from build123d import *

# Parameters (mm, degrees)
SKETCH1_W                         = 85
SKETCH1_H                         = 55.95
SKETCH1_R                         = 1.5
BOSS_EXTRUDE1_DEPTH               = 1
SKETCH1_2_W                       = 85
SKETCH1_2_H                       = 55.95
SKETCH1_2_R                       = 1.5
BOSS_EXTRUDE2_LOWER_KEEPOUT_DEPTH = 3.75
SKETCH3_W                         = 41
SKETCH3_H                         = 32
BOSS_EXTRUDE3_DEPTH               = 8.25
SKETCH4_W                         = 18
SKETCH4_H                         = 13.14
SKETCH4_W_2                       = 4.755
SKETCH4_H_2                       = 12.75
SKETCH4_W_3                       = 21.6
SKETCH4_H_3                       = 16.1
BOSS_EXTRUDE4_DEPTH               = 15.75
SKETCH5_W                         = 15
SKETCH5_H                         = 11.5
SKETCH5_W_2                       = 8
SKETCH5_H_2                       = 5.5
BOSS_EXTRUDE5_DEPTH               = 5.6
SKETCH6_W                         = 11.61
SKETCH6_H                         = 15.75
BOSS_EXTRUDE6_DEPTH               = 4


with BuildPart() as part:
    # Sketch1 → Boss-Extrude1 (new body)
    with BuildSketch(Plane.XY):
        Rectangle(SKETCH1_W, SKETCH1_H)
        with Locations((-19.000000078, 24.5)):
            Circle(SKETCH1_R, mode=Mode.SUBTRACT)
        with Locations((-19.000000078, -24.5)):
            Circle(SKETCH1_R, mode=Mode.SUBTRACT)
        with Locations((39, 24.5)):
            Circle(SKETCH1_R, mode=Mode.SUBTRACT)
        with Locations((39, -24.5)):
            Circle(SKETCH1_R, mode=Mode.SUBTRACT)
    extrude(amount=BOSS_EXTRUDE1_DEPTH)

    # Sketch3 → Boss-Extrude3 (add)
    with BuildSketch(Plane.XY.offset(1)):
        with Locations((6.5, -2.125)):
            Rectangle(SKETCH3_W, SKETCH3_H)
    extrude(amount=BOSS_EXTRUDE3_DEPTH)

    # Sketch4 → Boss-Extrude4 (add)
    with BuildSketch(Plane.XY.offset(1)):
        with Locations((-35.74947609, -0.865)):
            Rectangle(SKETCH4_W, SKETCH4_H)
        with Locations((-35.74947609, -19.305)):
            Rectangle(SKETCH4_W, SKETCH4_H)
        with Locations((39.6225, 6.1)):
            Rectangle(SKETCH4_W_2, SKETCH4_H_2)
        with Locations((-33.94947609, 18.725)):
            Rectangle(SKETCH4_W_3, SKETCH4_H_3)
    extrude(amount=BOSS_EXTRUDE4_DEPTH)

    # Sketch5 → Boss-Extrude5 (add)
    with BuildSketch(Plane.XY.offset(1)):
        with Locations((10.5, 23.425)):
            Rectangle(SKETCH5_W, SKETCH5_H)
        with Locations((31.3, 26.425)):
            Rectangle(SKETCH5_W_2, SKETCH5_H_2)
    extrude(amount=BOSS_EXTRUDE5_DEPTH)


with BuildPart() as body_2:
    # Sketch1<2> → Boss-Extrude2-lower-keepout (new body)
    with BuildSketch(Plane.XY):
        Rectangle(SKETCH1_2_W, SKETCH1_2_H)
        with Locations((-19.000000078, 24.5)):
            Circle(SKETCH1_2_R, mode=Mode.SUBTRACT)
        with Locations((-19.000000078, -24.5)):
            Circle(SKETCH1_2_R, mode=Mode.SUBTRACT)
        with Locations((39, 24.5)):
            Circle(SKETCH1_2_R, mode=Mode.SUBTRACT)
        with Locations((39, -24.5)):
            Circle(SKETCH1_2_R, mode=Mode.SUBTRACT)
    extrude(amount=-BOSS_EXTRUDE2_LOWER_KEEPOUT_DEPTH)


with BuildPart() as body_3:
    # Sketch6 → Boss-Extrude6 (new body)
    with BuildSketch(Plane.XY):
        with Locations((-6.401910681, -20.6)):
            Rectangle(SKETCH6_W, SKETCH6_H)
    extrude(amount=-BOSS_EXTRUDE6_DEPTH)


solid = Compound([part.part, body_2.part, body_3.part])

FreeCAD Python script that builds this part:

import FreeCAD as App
import Part
import Sketcher


def add_polygon(sketch, points):
    """Adds a closed chain of lines whose ends are joined by coincident constraints."""
    first, n = sketch.GeometryCount, len(points)
    for a, b in zip(points, points[1:] + points[:1]):
        sketch.addGeometry(Part.LineSegment(App.Vector(*a, 0), App.Vector(*b, 0)), False)
    for i in range(n):
        sketch.addConstraint(Sketcher.Constraint("Coincident", first + i, 2, first + (i + 1) % n, 1))

doc = App.newDocument("Part")
params = doc.addObject("Spreadsheet::Sheet", "Params")
for row, (alias, value) in enumerate([
    ("sketch1_diameter", "3 mm"),
    ("sketch1_width", "85 mm"),
    ("sketch1_height", "55.95 mm"),
    ("pad1_length", "1 mm"),
    ("sketch2_width", "41 mm"),
    ("sketch2_height", "32 mm"),
    ("pad2_length", "8.25 mm"),
    ("sketch3_width", "18 mm"),
    ("sketch3_width2", "21.6 mm"),
    ("sketch3_height", "16.1 mm"),
    ("sketch3_height2", "13.14 mm"),
    ("sketch3_height3", "12.75 mm"),
    ("pad3_length", "15.75 mm"),
    ("sketch4_width", "15 mm"),
    ("sketch4_width2", "8 mm"),
    ("sketch4_height", "11.5 mm"),
    ("sketch4_height2", "5.5 mm"),
    ("pad4_length", "5.6 mm"),
    ("sketch5_diameter", "3 mm"),
    ("sketch5_width", "85 mm"),
    ("sketch5_height", "55.95 mm"),
    ("pad5_length", "3.75 mm"),
    ("sketch6_width", "11.61 mm"),
    ("sketch6_height", "15.75 mm"),
    ("pad6_length", "4 mm"),
], start=1):
    params.set(f"A{row}", alias)
    params.set(f"B{row}", "=" + value)
    params.setAlias(f"B{row}", alias)

body = doc.addObject("PartDesign::Body", "Body")

# Sketch on XY plane
sketch1 = body.newObject("Sketcher::SketchObject", "Sketch")
sketch1.AttachmentSupport = (doc.getObject("XY_Plane"), [""])
sketch1.MapMode = "FlatFace"
add_polygon(sketch1, [(-42.5, 27.975), (-42.5, -27.975), (42.5, -27.975), (42.5, 27.975)])  # lines 0-3
sketch1.addGeometry(Part.Circle(App.Vector(-19, -24.5, 0), App.Vector(0, 0, 1), 1.5), False)  # 4
sketch1.addGeometry(Part.Circle(App.Vector(39, -24.5, 0), App.Vector(0, 0, 1), 1.5), False)  # 5
sketch1.addGeometry(Part.Circle(App.Vector(-19, 24.5, 0), App.Vector(0, 0, 1), 1.5), False)  # 6
sketch1.addGeometry(Part.Circle(App.Vector(39, 24.5, 0), App.Vector(0, 0, 1), 1.5), False)  # 7
sketch1.addConstraint([
    Sketcher.Constraint("Vertical", 0),
    Sketcher.Constraint("Horizontal", 1),
    Sketcher.Constraint("Vertical", 2),
    Sketcher.Constraint("Horizontal", 3),
    Sketcher.Constraint("Equal", 4, 5),
    Sketcher.Constraint("Equal", 5, 6),
    Sketcher.Constraint("Equal", 6, 7),
    Sketcher.Constraint("Symmetric", 0, 2, 2, 2, -1, 1),
    Sketcher.Constraint("Symmetric", 4, 3, 6, 3, -1),
    Sketcher.Constraint("Symmetric", 5, 3, 7, 3, -1),
    Sketcher.Constraint("Horizontal", 4, 3, 5, 3),
    Sketcher.Constraint("Diameter", 4, 3.0),
    Sketcher.Constraint("DistanceX", 1, 1, 1, 2, 85.0),
    Sketcher.Constraint("DistanceX", 4, 3, -1, 1, 19.0),
    Sketcher.Constraint("DistanceX", -1, 1, 5, 3, 39.0),
    Sketcher.Constraint("DistanceY", 4, 3, 6, 3, 49.0),
    Sketcher.Constraint("DistanceY", 0, 2, 0, 1, 55.95),
])
sketch1.setExpression("Constraints[15]", "Params.sketch1_diameter")
sketch1.setExpression("Constraints[16]", "Params.sketch1_width")
sketch1.setExpression("Constraints[20]", "Params.sketch1_height")
pad1 = body.newObject("PartDesign::Pad", "Pad")
pad1.Profile = sketch1
pad1.setExpression("Length", "Params.pad1_length")

# Sketch on XY plane
sketch2 = body.newObject("Sketcher::SketchObject", "Sketch001")
sketch2.AttachmentSupport = (doc.getObject("XY_Plane"), [""])
sketch2.MapMode = "FlatFace"
sketch2.AttachmentOffset = App.Placement(App.Vector(0, 0, 1), App.Rotation())
add_polygon(sketch2, [(-14, 13.875), (-14, -18.125), (27, -18.125), (27, 13.875)])  # lines 0-3
sketch2.addConstraint([
    Sketcher.Constraint("Vertical", 0),
    Sketcher.Constraint("Horizontal", 1),
    Sketcher.Constraint("Vertical", 2),
    Sketcher.Constraint("Horizontal", 3),
    Sketcher.Constraint("DistanceX", 1, 1, 1, 2, 41.0),
    Sketcher.Constraint("DistanceY", 0, 2, 0, 1, 32.0),
    Sketcher.Constraint("DistanceX", 0, 2, -1, 1, 14.0),
    Sketcher.Constraint("DistanceY", 0, 2, -1, 1, 18.125),
])
sketch2.setExpression("Constraints[8]", "Params.sketch2_width")
sketch2.setExpression("Constraints[9]", "Params.sketch2_height")
pad2 = body.newObject("PartDesign::Pad", "Pad001")
pad2.Profile = sketch2
pad2.setExpression("Length", "Params.pad2_length")

# Sketch on XY plane
sketch3 = body.newObject("Sketcher::SketchObject", "Sketch002")
sketch3.AttachmentSupport = (doc.getObject("XY_Plane"), [""])
sketch3.MapMode = "FlatFace"
sketch3.AttachmentOffset = App.Placement(App.Vector(0, 0, 1), App.Rotation())
add_polygon(sketch3, [(-44.749476, 5.705), (-44.749476, -7.435), (-26.749476, -7.435), (-26.749476, 5.705)])  # lines 0-3
add_polygon(sketch3, [(-44.749476, -12.735), (-44.749476, -25.875), (-26.749476, -25.875), (-26.749476, -12.735)])  # lines 4-7
add_polygon(sketch3, [(37.245, 12.475), (37.245, -0.275), (42, -0.275), (42, 12.475)])  # lines 8-11
add_polygon(sketch3, [(-44.749476, 26.775), (-44.749476, 10.675), (-23.149476, 10.675), (-23.149476, 26.775)])  # lines 12-15
sketch3.addConstraint([
    Sketcher.Constraint("Vertical", 0),
    Sketcher.Constraint("Horizontal", 1),
    Sketcher.Constraint("Vertical", 2),
    Sketcher.Constraint("Horizontal", 3),
    Sketcher.Constraint("Vertical", 4),
    Sketcher.Constraint("Horizontal", 5),
    Sketcher.Constraint("Vertical", 6),
    Sketcher.Constraint("Horizontal", 7),
    Sketcher.Constraint("Vertical", 8),
    Sketcher.Constraint("Horizontal", 9),
    Sketcher.Constraint("Vertical", 10),
    Sketcher.Constraint("Horizontal", 11),
    Sketcher.Constraint("Vertical", 12),
    Sketcher.Constraint("Horizontal", 13),
    Sketcher.Constraint("Vertical", 14),
    Sketcher.Constraint("Horizontal", 15),
    Sketcher.Constraint("Vertical", 3, 2, 4, 2),
    Sketcher.Constraint("Vertical", 2, 2, 5, 2),
    Sketcher.Constraint("Vertical", 7, 2, 12, 2),
    Sketcher.Constraint("Equal", 2, 4),
    Sketcher.Constraint("DistanceX", 1, 1, 1, 2, 18.0),
    Sketcher.Constraint("DistanceX", 13, 1, 13, 2, 21.6),
    Sketcher.Constraint("DistanceY", 12, 2, 12, 1, 16.1),
    Sketcher.Constraint("DistanceX", -1, 1, 9, 2, 42.0),
    Sketcher.Constraint("DistanceY", 0, 2, 0, 1, 13.14),
    Sketcher.Constraint("DistanceY", 8, 2, 8, 1, 12.75),
    Sketcher.Constraint("DistanceY", 6, 2, 1, 2, 5.3),
    Sketcher.Constraint("DistanceY", 5, 2, 8, 2, 25.6),
    Sketcher.Constraint("DistanceX", 9, 1, 9, 2, 4.755),
    Sketcher.Constraint("DistanceY", 3, 2, 12, 2, 4.97),
    Sketcher.Constraint("DistanceY", 0, 2, -1, 1, 7.435),
    Sketcher.Constraint("DistanceX", 0, 2, -1, 1, 44.749476),
])
sketch3.setExpression("Constraints[36]", "Params.sketch3_width")
sketch3.setExpression("Constraints[37]", "Params.sketch3_width2")
sketch3.setExpression("Constraints[38]", "Params.sketch3_height")
sketch3.setExpression("Constraints[40]", "Params.sketch3_height2")
sketch3.setExpression("Constraints[41]", "Params.sketch3_height3")
pad3 = body.newObject("PartDesign::Pad", "Pad002")
pad3.Profile = sketch3
pad3.setExpression("Length", "Params.pad3_length")

# Sketch on XY plane
sketch4 = body.newObject("Sketcher::SketchObject", "Sketch003")
sketch4.AttachmentSupport = (doc.getObject("XY_Plane"), [""])
sketch4.MapMode = "FlatFace"
sketch4.AttachmentOffset = App.Placement(App.Vector(0, 0, 1), App.Rotation())
add_polygon(sketch4, [(3, 29.175), (3, 17.675), (18, 17.675), (18, 29.175)])  # lines 0-3
add_polygon(sketch4, [(27.3, 29.175), (27.3, 23.675), (35.3, 23.675), (35.3, 29.175)])  # lines 4-7
sketch4.addConstraint([
    Sketcher.Constraint("Vertical", 0),
    Sketcher.Constraint("Horizontal", 1),
    Sketcher.Constraint("Vertical", 2),
    Sketcher.Constraint("Horizontal", 3),
    Sketcher.Constraint("Vertical", 4),
    Sketcher.Constraint("Horizontal", 5),
    Sketcher.Constraint("Vertical", 6),
    Sketcher.Constraint("Horizontal", 7),
    Sketcher.Constraint("Horizontal", 3, 2, 6, 2),
    Sketcher.Constraint("DistanceX", 1, 1, 1, 2, 15.0),
    Sketcher.Constraint("DistanceX", 5, 1, 5, 2, 8.0),
    Sketcher.Constraint("DistanceY", 0, 2, 0, 1, 11.5),
    Sketcher.Constraint("DistanceY", 4, 2, 4, 1, 5.5),
    Sketcher.Constraint("DistanceX", -1, 1, 0, 2, 3.0),
    Sketcher.Constraint("DistanceX", -1, 1, 4, 2, 27.3),
    Sketcher.Constraint("DistanceY", -1, 1, 0, 2, 17.675),
])
sketch4.setExpression("Constraints[17]", "Params.sketch4_width")
sketch4.setExpression("Constraints[18]", "Params.sketch4_width2")
sketch4.setExpression("Constraints[19]", "Params.sketch4_height")
sketch4.setExpression("Constraints[20]", "Params.sketch4_height2")
pad4 = body.newObject("PartDesign::Pad", "Pad003")
pad4.Profile = sketch4
pad4.setExpression("Length", "Params.pad4_length")
body2 = doc.addObject("PartDesign::Body", "Body001")

# Sketch on XY plane
sketch5 = body2.newObject("Sketcher::SketchObject", "Sketch004")
sketch5.AttachmentSupport = (doc.getObject("XY_Plane001"), [""])
sketch5.MapMode = "FlatFace"
add_polygon(sketch5, [(-42.5, 27.975), (-42.5, -27.975), (42.5, -27.975), (42.5, 27.975)])  # lines 0-3
sketch5.addGeometry(Part.Circle(App.Vector(-19, -24.5, 0), App.Vector(0, 0, 1), 1.5), False)  # 4
sketch5.addGeometry(Part.Circle(App.Vector(39, -24.5, 0), App.Vector(0, 0, 1), 1.5), False)  # 5
sketch5.addGeometry(Part.Circle(App.Vector(-19, 24.5, 0), App.Vector(0, 0, 1), 1.5), False)  # 6
sketch5.addGeometry(Part.Circle(App.Vector(39, 24.5, 0), App.Vector(0, 0, 1), 1.5), False)  # 7
sketch5.addConstraint([
    Sketcher.Constraint("Vertical", 0),
    Sketcher.Constraint("Horizontal", 1),
    Sketcher.Constraint("Vertical", 2),
    Sketcher.Constraint("Horizontal", 3),
    Sketcher.Constraint("Equal", 4, 5),
    Sketcher.Constraint("Equal", 5, 6),
    Sketcher.Constraint("Equal", 6, 7),
    Sketcher.Constraint("Symmetric", 0, 2, 2, 2, -1, 1),
    Sketcher.Constraint("Symmetric", 4, 3, 6, 3, -1),
    Sketcher.Constraint("Symmetric", 5, 3, 7, 3, -1),
    Sketcher.Constraint("Horizontal", 4, 3, 5, 3),
    Sketcher.Constraint("Diameter", 4, 3.0),
    Sketcher.Constraint("DistanceX", 1, 1, 1, 2, 85.0),
    Sketcher.Constraint("DistanceX", 4, 3, -1, 1, 19.0),
    Sketcher.Constraint("DistanceX", -1, 1, 5, 3, 39.0),
    Sketcher.Constraint("DistanceY", 4, 3, 6, 3, 49.0),
    Sketcher.Constraint("DistanceY", 0, 2, 0, 1, 55.95),
])
sketch5.setExpression("Constraints[15]", "Params.sketch5_diameter")
sketch5.setExpression("Constraints[16]", "Params.sketch5_width")
sketch5.setExpression("Constraints[20]", "Params.sketch5_height")
pad5 = body2.newObject("PartDesign::Pad", "Pad004")
pad5.Profile = sketch5
pad5.setExpression("Length", "Params.pad5_length")
pad5.Reversed = True
body3 = doc.addObject("PartDesign::Body", "Body002")

# Sketch on XY plane
sketch6 = body3.newObject("Sketcher::SketchObject", "Sketch005")
sketch6.AttachmentSupport = (doc.getObject("XY_Plane002"), [""])
sketch6.MapMode = "FlatFace"
add_polygon(sketch6, [(-12.206911, -12.725), (-12.206911, -28.475), (-0.596911, -28.475), (-0.596911, -12.725)])  # lines 0-3
sketch6.addConstraint([
    Sketcher.Constraint("Vertical", 0),
    Sketcher.Constraint("Horizontal", 1),
    Sketcher.Constraint("Vertical", 2),
    Sketcher.Constraint("Horizontal", 3),
    Sketcher.Constraint("DistanceX", 1, 1, 1, 2, 11.61),
    Sketcher.Constraint("DistanceY", 0, 2, 0, 1, 15.75),
    Sketcher.Constraint("DistanceY", 0, 2, -1, 1, 28.475),
    Sketcher.Constraint("DistanceX", 0, 2, -1, 1, 12.206911),
])
sketch6.setExpression("Constraints[8]", "Params.sketch6_width")
sketch6.setExpression("Constraints[9]", "Params.sketch6_height")
pad6 = body3.newObject("PartDesign::Pad", "Pad005")
pad6.Profile = sketch6
pad6.setExpression("Length", "Params.pad6_length")
pad6.Reversed = True

doc.recompute()
